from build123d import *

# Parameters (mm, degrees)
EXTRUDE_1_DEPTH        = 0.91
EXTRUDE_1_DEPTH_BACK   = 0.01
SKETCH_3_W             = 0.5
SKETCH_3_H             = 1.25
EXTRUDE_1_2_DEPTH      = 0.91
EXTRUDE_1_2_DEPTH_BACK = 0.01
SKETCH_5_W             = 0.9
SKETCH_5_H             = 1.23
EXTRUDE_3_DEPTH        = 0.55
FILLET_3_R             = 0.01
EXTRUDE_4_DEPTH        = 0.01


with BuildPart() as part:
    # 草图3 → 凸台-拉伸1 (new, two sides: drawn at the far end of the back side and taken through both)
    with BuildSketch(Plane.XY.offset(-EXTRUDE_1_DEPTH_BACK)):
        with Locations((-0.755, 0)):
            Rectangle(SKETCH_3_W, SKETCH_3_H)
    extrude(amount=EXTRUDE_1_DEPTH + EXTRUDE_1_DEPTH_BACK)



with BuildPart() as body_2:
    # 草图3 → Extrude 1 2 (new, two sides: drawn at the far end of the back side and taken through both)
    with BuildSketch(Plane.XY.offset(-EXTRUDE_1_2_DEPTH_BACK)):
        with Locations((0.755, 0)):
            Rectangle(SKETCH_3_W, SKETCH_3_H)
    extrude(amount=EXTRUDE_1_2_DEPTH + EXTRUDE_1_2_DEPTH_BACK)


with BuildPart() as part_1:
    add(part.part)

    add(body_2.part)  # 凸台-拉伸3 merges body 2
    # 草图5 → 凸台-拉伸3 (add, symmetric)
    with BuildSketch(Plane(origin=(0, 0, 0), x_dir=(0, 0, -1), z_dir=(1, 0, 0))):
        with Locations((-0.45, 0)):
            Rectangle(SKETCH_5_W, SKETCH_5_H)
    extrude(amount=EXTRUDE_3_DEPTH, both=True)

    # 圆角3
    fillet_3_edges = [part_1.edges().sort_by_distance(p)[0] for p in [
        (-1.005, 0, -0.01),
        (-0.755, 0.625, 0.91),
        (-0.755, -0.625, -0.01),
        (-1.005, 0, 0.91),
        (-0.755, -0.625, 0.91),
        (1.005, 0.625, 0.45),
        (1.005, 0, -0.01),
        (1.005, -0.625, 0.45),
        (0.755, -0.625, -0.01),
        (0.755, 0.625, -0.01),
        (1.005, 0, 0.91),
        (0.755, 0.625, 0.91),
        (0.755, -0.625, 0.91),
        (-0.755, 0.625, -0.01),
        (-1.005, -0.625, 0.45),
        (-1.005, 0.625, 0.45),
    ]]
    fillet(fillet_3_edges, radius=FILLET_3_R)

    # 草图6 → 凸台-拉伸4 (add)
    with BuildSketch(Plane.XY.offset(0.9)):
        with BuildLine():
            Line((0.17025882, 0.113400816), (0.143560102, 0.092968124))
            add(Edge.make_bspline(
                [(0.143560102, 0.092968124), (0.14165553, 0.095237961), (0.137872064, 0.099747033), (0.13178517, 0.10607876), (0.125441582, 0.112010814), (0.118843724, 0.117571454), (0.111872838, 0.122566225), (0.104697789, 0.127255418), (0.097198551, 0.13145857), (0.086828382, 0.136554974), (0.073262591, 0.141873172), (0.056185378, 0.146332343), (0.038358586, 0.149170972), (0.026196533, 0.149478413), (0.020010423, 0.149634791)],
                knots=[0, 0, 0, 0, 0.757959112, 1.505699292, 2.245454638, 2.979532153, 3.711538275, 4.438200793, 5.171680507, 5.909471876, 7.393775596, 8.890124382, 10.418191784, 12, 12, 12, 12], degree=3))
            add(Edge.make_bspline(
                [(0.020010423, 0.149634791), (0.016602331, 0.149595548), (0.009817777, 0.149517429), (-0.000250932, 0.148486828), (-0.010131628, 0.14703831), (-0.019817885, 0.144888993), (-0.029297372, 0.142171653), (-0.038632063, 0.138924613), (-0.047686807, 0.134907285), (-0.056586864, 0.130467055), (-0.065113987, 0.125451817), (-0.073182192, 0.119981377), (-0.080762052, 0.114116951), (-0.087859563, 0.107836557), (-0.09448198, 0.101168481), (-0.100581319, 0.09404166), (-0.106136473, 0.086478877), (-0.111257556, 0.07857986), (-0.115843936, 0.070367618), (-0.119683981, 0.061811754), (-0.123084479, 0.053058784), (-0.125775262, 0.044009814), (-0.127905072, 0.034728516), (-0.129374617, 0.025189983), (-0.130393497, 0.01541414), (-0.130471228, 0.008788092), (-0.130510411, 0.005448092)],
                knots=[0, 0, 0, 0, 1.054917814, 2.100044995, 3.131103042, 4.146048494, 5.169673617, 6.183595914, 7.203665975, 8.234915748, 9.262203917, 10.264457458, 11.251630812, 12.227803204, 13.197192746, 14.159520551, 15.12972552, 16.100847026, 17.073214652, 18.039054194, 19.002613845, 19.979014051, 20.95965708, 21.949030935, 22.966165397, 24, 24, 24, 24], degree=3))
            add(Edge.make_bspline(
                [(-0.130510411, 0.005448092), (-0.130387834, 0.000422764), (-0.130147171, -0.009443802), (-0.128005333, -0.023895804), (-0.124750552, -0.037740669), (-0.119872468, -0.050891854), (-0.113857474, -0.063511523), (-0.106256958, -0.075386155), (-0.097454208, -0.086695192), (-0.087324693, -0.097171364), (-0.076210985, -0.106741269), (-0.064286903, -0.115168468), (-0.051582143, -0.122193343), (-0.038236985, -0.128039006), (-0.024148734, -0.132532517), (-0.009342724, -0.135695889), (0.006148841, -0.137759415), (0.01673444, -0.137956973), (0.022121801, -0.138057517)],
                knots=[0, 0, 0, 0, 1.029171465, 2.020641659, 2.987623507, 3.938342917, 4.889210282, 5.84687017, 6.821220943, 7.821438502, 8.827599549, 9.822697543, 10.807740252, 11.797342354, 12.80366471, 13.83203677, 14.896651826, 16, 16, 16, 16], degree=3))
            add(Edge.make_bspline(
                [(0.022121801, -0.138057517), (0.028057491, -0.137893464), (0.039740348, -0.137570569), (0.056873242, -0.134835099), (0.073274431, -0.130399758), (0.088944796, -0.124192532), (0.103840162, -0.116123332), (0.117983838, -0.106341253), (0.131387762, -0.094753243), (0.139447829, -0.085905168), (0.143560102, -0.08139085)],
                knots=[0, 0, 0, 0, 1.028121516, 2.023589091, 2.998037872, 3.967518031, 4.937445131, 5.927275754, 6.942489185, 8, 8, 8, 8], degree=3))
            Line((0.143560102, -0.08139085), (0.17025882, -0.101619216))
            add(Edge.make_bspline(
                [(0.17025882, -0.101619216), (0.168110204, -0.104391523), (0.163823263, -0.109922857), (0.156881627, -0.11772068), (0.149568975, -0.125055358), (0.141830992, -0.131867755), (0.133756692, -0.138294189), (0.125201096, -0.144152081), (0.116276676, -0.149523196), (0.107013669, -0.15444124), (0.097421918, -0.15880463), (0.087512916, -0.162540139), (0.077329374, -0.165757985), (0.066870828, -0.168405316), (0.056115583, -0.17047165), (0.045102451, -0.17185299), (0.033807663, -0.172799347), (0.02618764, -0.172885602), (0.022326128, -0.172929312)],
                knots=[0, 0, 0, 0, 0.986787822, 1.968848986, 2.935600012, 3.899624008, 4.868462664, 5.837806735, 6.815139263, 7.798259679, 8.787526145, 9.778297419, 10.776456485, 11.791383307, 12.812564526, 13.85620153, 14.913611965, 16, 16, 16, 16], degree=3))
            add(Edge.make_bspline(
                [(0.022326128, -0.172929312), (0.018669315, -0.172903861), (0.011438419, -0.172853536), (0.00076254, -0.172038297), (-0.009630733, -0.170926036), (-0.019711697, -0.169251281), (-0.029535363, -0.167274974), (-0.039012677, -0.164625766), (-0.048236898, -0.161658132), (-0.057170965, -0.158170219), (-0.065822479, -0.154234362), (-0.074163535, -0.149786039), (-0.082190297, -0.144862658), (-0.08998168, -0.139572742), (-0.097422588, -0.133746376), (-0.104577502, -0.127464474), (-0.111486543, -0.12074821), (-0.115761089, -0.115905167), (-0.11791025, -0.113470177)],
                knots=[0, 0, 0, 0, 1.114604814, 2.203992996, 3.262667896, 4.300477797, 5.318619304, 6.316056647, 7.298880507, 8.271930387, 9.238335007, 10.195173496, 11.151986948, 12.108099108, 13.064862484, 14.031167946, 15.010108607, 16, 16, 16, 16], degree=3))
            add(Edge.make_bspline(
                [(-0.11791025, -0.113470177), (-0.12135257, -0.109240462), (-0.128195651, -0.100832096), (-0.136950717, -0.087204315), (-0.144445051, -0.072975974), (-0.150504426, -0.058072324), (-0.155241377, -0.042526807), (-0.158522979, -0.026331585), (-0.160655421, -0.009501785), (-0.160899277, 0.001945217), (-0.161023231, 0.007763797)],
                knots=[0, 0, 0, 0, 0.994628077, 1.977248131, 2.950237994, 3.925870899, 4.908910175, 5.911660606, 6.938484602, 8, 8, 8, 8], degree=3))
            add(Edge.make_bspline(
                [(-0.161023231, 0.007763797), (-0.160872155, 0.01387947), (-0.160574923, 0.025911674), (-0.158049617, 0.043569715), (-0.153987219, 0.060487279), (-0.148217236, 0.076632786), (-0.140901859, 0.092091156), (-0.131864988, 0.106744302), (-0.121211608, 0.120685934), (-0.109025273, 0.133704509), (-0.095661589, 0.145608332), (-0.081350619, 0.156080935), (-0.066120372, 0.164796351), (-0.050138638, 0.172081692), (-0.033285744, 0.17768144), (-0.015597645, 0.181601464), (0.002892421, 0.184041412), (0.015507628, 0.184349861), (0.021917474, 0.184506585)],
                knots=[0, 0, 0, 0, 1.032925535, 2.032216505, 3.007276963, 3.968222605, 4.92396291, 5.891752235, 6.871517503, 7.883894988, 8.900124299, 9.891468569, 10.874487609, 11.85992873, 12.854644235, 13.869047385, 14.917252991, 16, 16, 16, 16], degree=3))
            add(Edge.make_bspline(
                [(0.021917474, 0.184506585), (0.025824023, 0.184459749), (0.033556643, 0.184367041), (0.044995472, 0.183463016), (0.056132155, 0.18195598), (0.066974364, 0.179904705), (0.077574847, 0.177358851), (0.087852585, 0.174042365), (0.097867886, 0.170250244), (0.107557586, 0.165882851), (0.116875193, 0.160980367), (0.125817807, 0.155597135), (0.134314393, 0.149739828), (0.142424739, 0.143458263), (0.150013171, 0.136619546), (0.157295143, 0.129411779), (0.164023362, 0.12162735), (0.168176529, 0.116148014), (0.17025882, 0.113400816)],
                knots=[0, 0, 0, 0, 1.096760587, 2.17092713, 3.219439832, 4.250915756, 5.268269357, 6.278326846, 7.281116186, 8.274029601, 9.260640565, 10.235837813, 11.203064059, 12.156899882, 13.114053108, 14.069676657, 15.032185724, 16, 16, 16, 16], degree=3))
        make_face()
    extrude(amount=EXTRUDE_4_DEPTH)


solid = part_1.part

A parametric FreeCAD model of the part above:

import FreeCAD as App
import Part
import Sketcher
Q = App.Units.Quantity


def edges_at(feature, points):
    """Names of the edges that pass closest to the given points."""
    edges = feature.Shape.Edges
    near = lambda p: min(range(len(edges)), key=lambda i: edges[i].distToShape(Part.Vertex(*p))[0])
    return sorted({f"Edge{near(p) + 1}" for p in points})


def add_polygon(sketch, points):
    """Adds a closed chain of lines whose ends are joined by coincident constraints."""
    first, n = sketch.GeometryCount, len(points)
    for a, b in zip(points, points[1:] + points[:1]):
        sketch.addGeometry(Part.LineSegment(App.Vector(*a, 0), App.Vector(*b, 0)), False)
    for i in range(n):
        sketch.addConstraint(Sketcher.Constraint("Coincident", first + i, 2, first + (i + 1) % n, 1))

doc = App.newDocument("Part")
body = doc.addObject("PartDesign::Body", "Body")

# Sketch on XY plane
sketch1 = doc.addObject("Sketcher::SketchObject", "Sketch")
body.addObject(sketch1)
sketch1.AttachmentSupport = (doc.XY_Plane, [""])
sketch1.MapMode = "FlatFace"
add_polygon(sketch1, [(-1.005, 0.625), (-1.005, -0.625), (-0.505, -0.625), (-0.505, 0.625)])  # lines 0-3
sketch1.addConstraint(Sketcher.Constraint("Vertical", 0))
sketch1.addConstraint(Sketcher.Constraint("Horizontal", 1))
sketch1.addConstraint(Sketcher.Constraint("Vertical", 2))
sketch1.addConstraint(Sketcher.Constraint("Horizontal", 3))
sketch1.addConstraint(Sketcher.Constraint("DistanceX", 1, 1, 1, 2, Q("0.5 mm")))
sketch1.addConstraint(Sketcher.Constraint("DistanceY", 0, 2, 0, 1, Q("1.25 mm")))
sketch1.addConstraint(Sketcher.Constraint("DistanceX", 0, 2, -1, 1, Q("1.005 mm")))
sketch1.addConstraint(Sketcher.Constraint("DistanceY", 0, 2, -1, 1, Q("0.625 mm")))
pad1 = doc.addObject("PartDesign::Pad", "Pad")
body.addObject(pad1)
pad1.Profile = sketch1
pad1.Type = "TwoLengths"
pad1.Length = 0.91
pad1.Length2 = 0.01
body2 = doc.addObject("PartDesign::Body", "Body001")

# Sketch on XY plane
sketch2 = doc.addObject("Sketcher::SketchObject", "Sketch001")
body2.addObject(sketch2)
sketch2.AttachmentSupport = (doc.getObject("XY_Plane001"), [""])
sketch2.MapMode = "FlatFace"
add_polygon(sketch2, [(0.505, 0.625), (0.505, -0.625), (1.005, -0.625), (1.005, 0.625)])  # lines 0-3
sketch2.addConstraint(Sketcher.Constraint("Vertical", 0))
sketch2.addConstraint(Sketcher.Constraint("Horizontal", 1))
sketch2.addConstraint(Sketcher.Constraint("Vertical", 2))
sketch2.addConstraint(Sketcher.Constraint("Horizontal", 3))
sketch2.addConstraint(Sketcher.Constraint("DistanceX", 1, 1, 1, 2, Q("0.5 mm")))
sketch2.addConstraint(Sketcher.Constraint("DistanceY", 0, 2, 0, 1, Q("1.25 mm")))
sketch2.addConstraint(Sketcher.Constraint("DistanceX", -1, 1, 0, 2, Q("0.505 mm")))
sketch2.addConstraint(Sketcher.Constraint("DistanceY", 0, 2, -1, 1, Q("0.625 mm")))
pad2 = doc.addObject("PartDesign::Pad", "Pad001")
body2.addObject(pad2)
pad2.Profile = sketch2
pad2.Type = "TwoLengths"
pad2.Length = 0.91
pad2.Length2 = 0.01
body.AllowCompound = True
doc.recompute()

boolean = doc.addObject("PartDesign::Boolean", "Boolean")
body.addObject(boolean)
boolean.Type = "Fuse"
boolean.addObjects([body2])

# Sketch on YZ plane
sketch3 = doc.addObject("Sketcher::SketchObject", "Sketch002")
body.addObject(sketch3)
sketch3.AttachmentSupport = (doc.YZ_Plane, [""])
sketch3.MapMode = "FlatFace"
add_polygon(sketch3, [(0.615, 0.9), (-0.615, 0.9), (-0.615, 0), (0.615, 0)])  # lines 0-3
sketch3.addConstraint(Sketcher.Constraint("Horizontal", 0))
sketch3.addConstraint(Sketcher.Constraint("Vertical", 1))
sketch3.addConstraint(Sketcher.Constraint("Horizontal", 2))
sketch3.addConstraint(Sketcher.Constraint("Vertical", 3))
sketch3.addConstraint(Sketcher.Constraint("Symmetric", 1, 2, 2, 2, -1, 1))
sketch3.addConstraint(Sketcher.Constraint("DistanceY", 1, 2, 1, 1, Q("0.9 mm")))
sketch3.addConstraint(Sketcher.Constraint("DistanceX", 0, 2, 0, 1, Q("1.23 mm")))
pad3 = doc.addObject("PartDesign::Pad", "Pad002")
body.addObject(pad3)
pad3.Profile = sketch3
pad3.Length = 1.1
pad3.Midplane = True
doc.recompute()

fillet = doc.addObject("PartDesign::Fillet", "Fillet")
body.addObject(fillet)
fillet.Base = (pad3, edges_at(pad3, [
    (-1.005, 0, -0.01),
    (-0.755, 0.625, 0.91),
    (-0.755, -0.625, -0.01),
    (-1.005, 0, 0.91),
    (-0.755, -0.625, 0.91),
    (1.005, 0.625, 0.45),
    (1.005, 0, -0.01),
    (1.005, -0.625, 0.45),
    (0.755, -0.625, -0.01),
    (0.755, 0.625, -0.01),
    (1.005, 0, 0.91),
    (0.755, 0.625, 0.91),
    (0.755, -0.625, 0.91),
    (-0.755, 0.625, -0.01),
    (-1.005, -0.625, 0.45),
    (-1.005, 0.625, 0.45),
]))
fillet.Radius = 0.01

# Sketch on XY plane
sketch4 = doc.addObject("Sketcher::SketchObject", "Sketch003")
body.addObject(sketch4)
sketch4.AttachmentSupport = (doc.XY_Plane, [""])
sketch4.MapMode = "FlatFace"
sketch4.AttachmentOffset = App.Placement(App.Vector(0, 0, 0.9), App.Rotation())
sketch4.addGeometry(Part.LineSegment(App.Vector(0.14356, 0.092968, 0), App.Vector(0.170259, 0.113401, 0)), False)
sketch4.addGeometry(Part.BSplineCurve([App.Vector(0.021917, 0.184507, 0), App.Vector(0.025824, 0.18446, 0), App.Vector(0.033557, 0.184367, 0), App.Vector(0.044995, 0.183463, 0), App.Vector(0.056132, 0.181956, 0), App.Vector(0.066974, 0.179905, 0), App.Vector(0.077575, 0.177359, 0), App.Vector(0.087853, 0.174042, 0), App.Vector(0.097868, 0.17025, 0), App.Vector(0.107558, 0.165883, 0), App.Vector(0.116875, 0.16098, 0), App.Vector(0.125818, 0.155597, 0), App.Vector(0.134314, 0.14974, 0), App.Vector(0.142425, 0.143458, 0), App.Vector(0.150013, 0.13662, 0), App.Vector(0.157295, 0.129412, 0), App.Vector(0.164023, 0.121627, 0), App.Vector(0.168177, 0.116148, 0), App.Vector(0.170259, 0.113401, 0)], [4, 1, 1, 1, 1, 1, 1, 1, 1, 1, 1, 1, 1, 1, 1, 1, 4], [0, 1.096760587, 2.17092713, 3.219439832, 4.250915756, 5.268269357, 6.278326846, 7.281116186, 8.274029601, 9.260640565, 10.235837813, 11.203064059, 12.156899882, 13.114053108, 14.069676657, 15.032185724, 16], False, 3, [1, 1, 1, 1, 1, 1, 1, 1, 1, 1, 1, 1, 1, 1, 1, 1, 1, 1, 1], False), False)
sketch4.addGeometry(Part.BSplineCurve([App.Vector(-0.161023, 0.007764, 0), App.Vector(-0.160872, 0.013879, 0), App.Vector(-0.160575, 0.025912, 0), App.Vector(-0.15805, 0.04357, 0), App.Vector(-0.153987, 0.060487, 0), App.Vector(-0.148217, 0.076633, 0), App.Vector(-0.140902, 0.092091, 0), App.Vector(-0.131865, 0.106744, 0), App.Vector(-0.121212, 0.120686, 0), App.Vector(-0.109025, 0.133705, 0), App.Vector(-0.095662, 0.145608, 0), App.Vector(-0.081351, 0.156081, 0), App.Vector(-0.06612, 0.164796, 0), App.Vector(-0.050139, 0.172082, 0), App.Vector(-0.033286, 0.177681, 0), App.Vector(-0.015598, 0.181601, 0), App.Vector(0.002892, 0.184041, 0), App.Vector(0.015508, 0.18435, 0), App.Vector(0.021917, 0.184507, 0)], [4, 1, 1, 1, 1, 1, 1, 1, 1, 1, 1, 1, 1, 1, 1, 1, 4], [0, 1.032925535, 2.032216505, 3.007276963, 3.968222605, 4.92396291, 5.891752235, 6.871517503, 7.883894988, 8.900124299, 9.891468569, 10.874487609, 11.85992873, 12.854644235, 13.869047385, 14.917252991, 16], False, 3, [1, 1, 1, 1, 1, 1, 1, 1, 1, 1, 1, 1, 1, 1, 1, 1, 1, 1, 1], False), False)
sketch4.addGeometry(Part.BSplineCurve([App.Vector(-0.11791, -0.11347, 0), App.Vector(-0.121353, -0.10924, 0), App.Vector(-0.128196, -0.100832, 0), App.Vector(-0.136951, -0.087204, 0), App.Vector(-0.144445, -0.072976, 0), App.Vector(-0.150504, -0.058072, 0), App.Vector(-0.155241, -0.042527, 0), App.Vector(-0.158523, -0.026332, 0), App.Vector(-0.160655, -0.009502, 0), App.Vector(-0.160899, 0.001945, 0), App.Vector(-0.161023, 0.007764, 0)], [4, 1, 1, 1, 1, 1, 1, 1, 4], [0, 0.994628077, 1.977248131, 2.950237994, 3.925870899, 4.908910175, 5.911660606, 6.938484602, 8], False, 3, [1, 1, 1, 1, 1, 1, 1, 1, 1, 1, 1], False), False)
sketch4.addGeometry(Part.BSplineCurve([App.Vector(0.022326, -0.172929, 0), App.Vector(0.018669, -0.172904, 0), App.Vector(0.011438, -0.172854, 0), App.Vector(0.000763, -0.172038, 0), App.Vector(-0.009631, -0.170926, 0), App.Vector(-0.019712, -0.169251, 0), App.Vector(-0.029535, -0.167275, 0), App.Vector(-0.039013, -0.164626, 0), App.Vector(-0.048237, -0.161658, 0), App.Vector(-0.057171, -0.15817, 0), App.Vector(-0.065822, -0.154234, 0), App.Vector(-0.074164, -0.149786, 0), App.Vector(-0.08219, -0.144863, 0), App.Vector(-0.089982, -0.139573, 0), App.Vector(-0.097423, -0.133746, 0), App.Vector(-0.104578, -0.127464, 0), App.Vector(-0.111487, -0.120748, 0), App.Vector(-0.115761, -0.115905, 0), App.Vector(-0.11791, -0.11347, 0)], [4, 1, 1, 1, 1, 1, 1, 1, 1, 1, 1, 1, 1, 1, 1, 1, 4], [0, 1.114604814, 2.203992996, 3.262667896, 4.300477797, 5.318619304, 6.316056647, 7.298880507, 8.271930387, 9.238335007, 10.195173496, 11.151986948, 12.108099108, 13.064862484, 14.031167946, 15.010108607, 16], False, 3, [1, 1, 1, 1, 1, 1, 1, 1, 1, 1, 1, 1, 1, 1, 1, 1, 1, 1, 1], False), False)
sketch4.addGeometry(Part.BSplineCurve([App.Vector(0.170259, -0.101619, 0), App.Vector(0.16811, -0.104392, 0), App.Vector(0.163823, -0.109923, 0), App.Vector(0.156882, -0.117721, 0), App.Vector(0.149569, -0.125055, 0), App.Vector(0.141831, -0.131868, 0), App.Vector(0.133757, -0.138294, 0), App.Vector(0.125201, -0.144152, 0), App.Vector(0.116277, -0.149523, 0), App.Vector(0.107014, -0.154441, 0), App.Vector(0.097422, -0.158805, 0), App.Vector(0.087513, -0.16254, 0), App.Vector(0.077329, -0.165758, 0), App.Vector(0.066871, -0.168405, 0), App.Vector(0.056116, -0.170472, 0), App.Vector(0.045102, -0.171853, 0), App.Vector(0.033808, -0.172799, 0), App.Vector(0.026188, -0.172886, 0), App.Vector(0.022326, -0.172929, 0)], [4, 1, 1, 1, 1, 1, 1, 1, 1, 1, 1, 1, 1, 1, 1, 1, 4], [0, 0.986787822, 1.968848986, 2.935600012, 3.899624008, 4.868462664, 5.837806735, 6.815139263, 7.798259679, 8.787526145, 9.778297419, 10.776456485, 11.791383307, 12.812564526, 13.85620153, 14.913611965, 16], False, 3, [1, 1, 1, 1, 1, 1, 1, 1, 1, 1, 1, 1, 1, 1, 1, 1, 1, 1, 1], False), False)
sketch4.addGeometry(Part.LineSegment(App.Vector(0.170259, -0.101619, 0), App.Vector(0.14356, -0.081391, 0)), False)
sketch4.addGeometry(Part.BSplineCurve([App.Vector(0.022122, -0.138058, 0), App.Vector(0.028057, -0.137893, 0), App.Vector(0.03974, -0.137571, 0), App.Vector(0.056873, -0.134835, 0), App.Vector(0.073274, -0.1304, 0), App.Vector(0.088945, -0.124193, 0), App.Vector(0.10384, -0.116123, 0), App.Vector(0.117984, -0.106341, 0), App.Vector(0.131388, -0.094753, 0), App.Vector(0.139448, -0.085905, 0), App.Vector(0.14356, -0.081391, 0)], [4, 1, 1, 1, 1, 1, 1, 1, 4], [0, 1.028121516, 2.023589091, 2.998037872, 3.967518031, 4.937445131, 5.927275754, 6.942489185, 8], False, 3, [1, 1, 1, 1, 1, 1, 1, 1, 1, 1, 1], False), False)
sketch4.addGeometry(Part.BSplineCurve([App.Vector(-0.13051, 0.005448, 0), App.Vector(-0.130388, 0.000423, 0), App.Vector(-0.130147, -0.009444, 0), App.Vector(-0.128005, -0.023896, 0), App.Vector(-0.124751, -0.037741, 0), App.Vector(-0.119872, -0.050892, 0), App.Vector(-0.113857, -0.063512, 0), App.Vector(-0.106257, -0.075386, 0), App.Vector(-0.097454, -0.086695, 0), App.Vector(-0.087325, -0.097171, 0), App.Vector(-0.076211, -0.106741, 0), App.Vector(-0.064287, -0.115168, 0), App.Vector(-0.051582, -0.122193, 0), App.Vector(-0.038237, -0.128039, 0), App.Vector(-0.024149, -0.132533, 0), App.Vector(-0.009343, -0.135696, 0), App.Vector(0.006149, -0.137759, 0), App.Vector(0.016734, -0.137957, 0), App.Vector(0.022122, -0.138058, 0)], [4, 1, 1, 1, 1, 1, 1, 1, 1, 1, 1, 1, 1, 1, 1, 1, 4], [0, 1.029171465, 2.020641659, 2.987623507, 3.938342917, 4.889210282, 5.84687017, 6.821220943, 7.821438502, 8.827599549, 9.822697543, 10.807740252, 11.797342354, 12.80366471, 13.83203677, 14.896651826, 16], False, 3, [1, 1, 1, 1, 1, 1, 1, 1, 1, 1, 1, 1, 1, 1, 1, 1, 1, 1, 1], False), False)
sketch4.addGeometry(Part.BSplineCurve([App.Vector(0.02001, 0.149635, 0), App.Vector(0.016602, 0.149596, 0), App.Vector(0.009818, 0.149517, 0), App.Vector(-0.000251, 0.148487, 0), App.Vector(-0.010132, 0.147038, 0), App.Vector(-0.019818, 0.144889, 0), App.Vector(-0.029297, 0.142172, 0), App.Vector(-0.038632, 0.138925, 0), App.Vector(-0.047687, 0.134907, 0), App.Vector(-0.056587, 0.130467, 0), App.Vector(-0.065114, 0.125452, 0), App.Vector(-0.073182, 0.119981, 0), App.Vector(-0.080762, 0.114117, 0), App.Vector(-0.08786, 0.107837, 0), App.Vector(-0.094482, 0.101168, 0), App.Vector(-0.100581, 0.094042, 0), App.Vector(-0.106136, 0.086479, 0), App.Vector(-0.111258, 0.07858, 0), App.Vector(-0.115844, 0.070368, 0), App.Vector(-0.119684, 0.061812, 0), App.Vector(-0.123084, 0.053059, 0), App.Vector(-0.125775, 0.04401, 0), App.Vector(-0.127905, 0.034729, 0), App.Vector(-0.129375, 0.02519, 0), App.Vector(-0.130393, 0.015414, 0), App.Vector(-0.130471, 0.008788, 0), App.Vector(-0.13051, 0.005448, 0)], [4, 1, 1, 1, 1, 1, 1, 1, 1, 1, 1, 1, 1, 1, 1, 1, 1, 1, 1, 1, 1, 1, 1, 1, 4], [0, 1.054917814, 2.100044995, 3.131103042, 4.146048494, 5.169673617, 6.183595914, 7.203665975, 8.234915748, 9.262203917, 10.264457458, 11.251630812, 12.227803204, 13.197192746, 14.159520551, 15.12972552, 16.100847026, 17.073214652, 18.039054194, 19.002613845, 19.979014051, 20.95965708, 21.949030935, 22.966165397, 24], False, 3, [1, 1, 1, 1, 1, 1, 1, 1, 1, 1, 1, 1, 1, 1, 1, 1, 1, 1, 1, 1, 1, 1, 1, 1, 1, 1, 1], False), False)
sketch4.addGeometry(Part.BSplineCurve([App.Vector(0.14356, 0.092968, 0), App.Vector(0.141656, 0.095238, 0), App.Vector(0.137872, 0.099747, 0), App.Vector(0.131785, 0.106079, 0), App.Vector(0.125442, 0.112011, 0), App.Vector(0.118844, 0.117571, 0), App.Vector(0.111873, 0.122566, 0), App.Vector(0.104698, 0.127255, 0), App.Vector(0.097199, 0.131459, 0), App.Vector(0.086828, 0.136555, 0), App.Vector(0.073263, 0.141873, 0), App.Vector(0.056185, 0.146332, 0), App.Vector(0.038359, 0.149171, 0), App.Vector(0.026197, 0.149478, 0), App.Vector(0.02001, 0.149635, 0)], [4, 1, 1, 1, 1, 1, 1, 1, 1, 1, 1, 1, 4], [0, 0.757959112, 1.505699292, 2.245454638, 2.979532153, 3.711538275, 4.438200793, 5.171680507, 5.909471876, 7.393775596, 8.890124382, 10.418191784, 12], False, 3, [1, 1, 1, 1, 1, 1, 1, 1, 1, 1, 1, 1, 1, 1, 1], False), False)
sketch4.addConstraint(Sketcher.Constraint("Block", 1))
sketch4.addConstraint(Sketcher.Constraint("Block", 2))
sketch4.addConstraint(Sketcher.Constraint("Block", 3))
sketch4.addConstraint(Sketcher.Constraint("Block", 4))
sketch4.addConstraint(Sketcher.Constraint("Block", 5))
sketch4.addConstraint(Sketcher.Constraint("Block", 7))
sketch4.addConstraint(Sketcher.Constraint("Block", 8))
sketch4.addConstraint(Sketcher.Constraint("Block", 9))
sketch4.addConstraint(Sketcher.Constraint("Block", 10))
sketch4.addConstraint(Sketcher.Constraint("Coincident", 0, 2, 1, 2))
sketch4.addConstraint(Sketcher.Constraint("Coincident", 5, 1, 6, 1))
sketch4.addConstraint(Sketcher.Constraint("Coincident", 6, 2, 7, 2))
sketch4.addConstraint(Sketcher.Constraint("Coincident", 10, 1, 0, 1))
pad4 = doc.addObject("PartDesign::Pad", "Pad003")
body.addObject(pad4)
pad4.Profile = sketch4
pad4.Length = 0.01

doc.recompute()
